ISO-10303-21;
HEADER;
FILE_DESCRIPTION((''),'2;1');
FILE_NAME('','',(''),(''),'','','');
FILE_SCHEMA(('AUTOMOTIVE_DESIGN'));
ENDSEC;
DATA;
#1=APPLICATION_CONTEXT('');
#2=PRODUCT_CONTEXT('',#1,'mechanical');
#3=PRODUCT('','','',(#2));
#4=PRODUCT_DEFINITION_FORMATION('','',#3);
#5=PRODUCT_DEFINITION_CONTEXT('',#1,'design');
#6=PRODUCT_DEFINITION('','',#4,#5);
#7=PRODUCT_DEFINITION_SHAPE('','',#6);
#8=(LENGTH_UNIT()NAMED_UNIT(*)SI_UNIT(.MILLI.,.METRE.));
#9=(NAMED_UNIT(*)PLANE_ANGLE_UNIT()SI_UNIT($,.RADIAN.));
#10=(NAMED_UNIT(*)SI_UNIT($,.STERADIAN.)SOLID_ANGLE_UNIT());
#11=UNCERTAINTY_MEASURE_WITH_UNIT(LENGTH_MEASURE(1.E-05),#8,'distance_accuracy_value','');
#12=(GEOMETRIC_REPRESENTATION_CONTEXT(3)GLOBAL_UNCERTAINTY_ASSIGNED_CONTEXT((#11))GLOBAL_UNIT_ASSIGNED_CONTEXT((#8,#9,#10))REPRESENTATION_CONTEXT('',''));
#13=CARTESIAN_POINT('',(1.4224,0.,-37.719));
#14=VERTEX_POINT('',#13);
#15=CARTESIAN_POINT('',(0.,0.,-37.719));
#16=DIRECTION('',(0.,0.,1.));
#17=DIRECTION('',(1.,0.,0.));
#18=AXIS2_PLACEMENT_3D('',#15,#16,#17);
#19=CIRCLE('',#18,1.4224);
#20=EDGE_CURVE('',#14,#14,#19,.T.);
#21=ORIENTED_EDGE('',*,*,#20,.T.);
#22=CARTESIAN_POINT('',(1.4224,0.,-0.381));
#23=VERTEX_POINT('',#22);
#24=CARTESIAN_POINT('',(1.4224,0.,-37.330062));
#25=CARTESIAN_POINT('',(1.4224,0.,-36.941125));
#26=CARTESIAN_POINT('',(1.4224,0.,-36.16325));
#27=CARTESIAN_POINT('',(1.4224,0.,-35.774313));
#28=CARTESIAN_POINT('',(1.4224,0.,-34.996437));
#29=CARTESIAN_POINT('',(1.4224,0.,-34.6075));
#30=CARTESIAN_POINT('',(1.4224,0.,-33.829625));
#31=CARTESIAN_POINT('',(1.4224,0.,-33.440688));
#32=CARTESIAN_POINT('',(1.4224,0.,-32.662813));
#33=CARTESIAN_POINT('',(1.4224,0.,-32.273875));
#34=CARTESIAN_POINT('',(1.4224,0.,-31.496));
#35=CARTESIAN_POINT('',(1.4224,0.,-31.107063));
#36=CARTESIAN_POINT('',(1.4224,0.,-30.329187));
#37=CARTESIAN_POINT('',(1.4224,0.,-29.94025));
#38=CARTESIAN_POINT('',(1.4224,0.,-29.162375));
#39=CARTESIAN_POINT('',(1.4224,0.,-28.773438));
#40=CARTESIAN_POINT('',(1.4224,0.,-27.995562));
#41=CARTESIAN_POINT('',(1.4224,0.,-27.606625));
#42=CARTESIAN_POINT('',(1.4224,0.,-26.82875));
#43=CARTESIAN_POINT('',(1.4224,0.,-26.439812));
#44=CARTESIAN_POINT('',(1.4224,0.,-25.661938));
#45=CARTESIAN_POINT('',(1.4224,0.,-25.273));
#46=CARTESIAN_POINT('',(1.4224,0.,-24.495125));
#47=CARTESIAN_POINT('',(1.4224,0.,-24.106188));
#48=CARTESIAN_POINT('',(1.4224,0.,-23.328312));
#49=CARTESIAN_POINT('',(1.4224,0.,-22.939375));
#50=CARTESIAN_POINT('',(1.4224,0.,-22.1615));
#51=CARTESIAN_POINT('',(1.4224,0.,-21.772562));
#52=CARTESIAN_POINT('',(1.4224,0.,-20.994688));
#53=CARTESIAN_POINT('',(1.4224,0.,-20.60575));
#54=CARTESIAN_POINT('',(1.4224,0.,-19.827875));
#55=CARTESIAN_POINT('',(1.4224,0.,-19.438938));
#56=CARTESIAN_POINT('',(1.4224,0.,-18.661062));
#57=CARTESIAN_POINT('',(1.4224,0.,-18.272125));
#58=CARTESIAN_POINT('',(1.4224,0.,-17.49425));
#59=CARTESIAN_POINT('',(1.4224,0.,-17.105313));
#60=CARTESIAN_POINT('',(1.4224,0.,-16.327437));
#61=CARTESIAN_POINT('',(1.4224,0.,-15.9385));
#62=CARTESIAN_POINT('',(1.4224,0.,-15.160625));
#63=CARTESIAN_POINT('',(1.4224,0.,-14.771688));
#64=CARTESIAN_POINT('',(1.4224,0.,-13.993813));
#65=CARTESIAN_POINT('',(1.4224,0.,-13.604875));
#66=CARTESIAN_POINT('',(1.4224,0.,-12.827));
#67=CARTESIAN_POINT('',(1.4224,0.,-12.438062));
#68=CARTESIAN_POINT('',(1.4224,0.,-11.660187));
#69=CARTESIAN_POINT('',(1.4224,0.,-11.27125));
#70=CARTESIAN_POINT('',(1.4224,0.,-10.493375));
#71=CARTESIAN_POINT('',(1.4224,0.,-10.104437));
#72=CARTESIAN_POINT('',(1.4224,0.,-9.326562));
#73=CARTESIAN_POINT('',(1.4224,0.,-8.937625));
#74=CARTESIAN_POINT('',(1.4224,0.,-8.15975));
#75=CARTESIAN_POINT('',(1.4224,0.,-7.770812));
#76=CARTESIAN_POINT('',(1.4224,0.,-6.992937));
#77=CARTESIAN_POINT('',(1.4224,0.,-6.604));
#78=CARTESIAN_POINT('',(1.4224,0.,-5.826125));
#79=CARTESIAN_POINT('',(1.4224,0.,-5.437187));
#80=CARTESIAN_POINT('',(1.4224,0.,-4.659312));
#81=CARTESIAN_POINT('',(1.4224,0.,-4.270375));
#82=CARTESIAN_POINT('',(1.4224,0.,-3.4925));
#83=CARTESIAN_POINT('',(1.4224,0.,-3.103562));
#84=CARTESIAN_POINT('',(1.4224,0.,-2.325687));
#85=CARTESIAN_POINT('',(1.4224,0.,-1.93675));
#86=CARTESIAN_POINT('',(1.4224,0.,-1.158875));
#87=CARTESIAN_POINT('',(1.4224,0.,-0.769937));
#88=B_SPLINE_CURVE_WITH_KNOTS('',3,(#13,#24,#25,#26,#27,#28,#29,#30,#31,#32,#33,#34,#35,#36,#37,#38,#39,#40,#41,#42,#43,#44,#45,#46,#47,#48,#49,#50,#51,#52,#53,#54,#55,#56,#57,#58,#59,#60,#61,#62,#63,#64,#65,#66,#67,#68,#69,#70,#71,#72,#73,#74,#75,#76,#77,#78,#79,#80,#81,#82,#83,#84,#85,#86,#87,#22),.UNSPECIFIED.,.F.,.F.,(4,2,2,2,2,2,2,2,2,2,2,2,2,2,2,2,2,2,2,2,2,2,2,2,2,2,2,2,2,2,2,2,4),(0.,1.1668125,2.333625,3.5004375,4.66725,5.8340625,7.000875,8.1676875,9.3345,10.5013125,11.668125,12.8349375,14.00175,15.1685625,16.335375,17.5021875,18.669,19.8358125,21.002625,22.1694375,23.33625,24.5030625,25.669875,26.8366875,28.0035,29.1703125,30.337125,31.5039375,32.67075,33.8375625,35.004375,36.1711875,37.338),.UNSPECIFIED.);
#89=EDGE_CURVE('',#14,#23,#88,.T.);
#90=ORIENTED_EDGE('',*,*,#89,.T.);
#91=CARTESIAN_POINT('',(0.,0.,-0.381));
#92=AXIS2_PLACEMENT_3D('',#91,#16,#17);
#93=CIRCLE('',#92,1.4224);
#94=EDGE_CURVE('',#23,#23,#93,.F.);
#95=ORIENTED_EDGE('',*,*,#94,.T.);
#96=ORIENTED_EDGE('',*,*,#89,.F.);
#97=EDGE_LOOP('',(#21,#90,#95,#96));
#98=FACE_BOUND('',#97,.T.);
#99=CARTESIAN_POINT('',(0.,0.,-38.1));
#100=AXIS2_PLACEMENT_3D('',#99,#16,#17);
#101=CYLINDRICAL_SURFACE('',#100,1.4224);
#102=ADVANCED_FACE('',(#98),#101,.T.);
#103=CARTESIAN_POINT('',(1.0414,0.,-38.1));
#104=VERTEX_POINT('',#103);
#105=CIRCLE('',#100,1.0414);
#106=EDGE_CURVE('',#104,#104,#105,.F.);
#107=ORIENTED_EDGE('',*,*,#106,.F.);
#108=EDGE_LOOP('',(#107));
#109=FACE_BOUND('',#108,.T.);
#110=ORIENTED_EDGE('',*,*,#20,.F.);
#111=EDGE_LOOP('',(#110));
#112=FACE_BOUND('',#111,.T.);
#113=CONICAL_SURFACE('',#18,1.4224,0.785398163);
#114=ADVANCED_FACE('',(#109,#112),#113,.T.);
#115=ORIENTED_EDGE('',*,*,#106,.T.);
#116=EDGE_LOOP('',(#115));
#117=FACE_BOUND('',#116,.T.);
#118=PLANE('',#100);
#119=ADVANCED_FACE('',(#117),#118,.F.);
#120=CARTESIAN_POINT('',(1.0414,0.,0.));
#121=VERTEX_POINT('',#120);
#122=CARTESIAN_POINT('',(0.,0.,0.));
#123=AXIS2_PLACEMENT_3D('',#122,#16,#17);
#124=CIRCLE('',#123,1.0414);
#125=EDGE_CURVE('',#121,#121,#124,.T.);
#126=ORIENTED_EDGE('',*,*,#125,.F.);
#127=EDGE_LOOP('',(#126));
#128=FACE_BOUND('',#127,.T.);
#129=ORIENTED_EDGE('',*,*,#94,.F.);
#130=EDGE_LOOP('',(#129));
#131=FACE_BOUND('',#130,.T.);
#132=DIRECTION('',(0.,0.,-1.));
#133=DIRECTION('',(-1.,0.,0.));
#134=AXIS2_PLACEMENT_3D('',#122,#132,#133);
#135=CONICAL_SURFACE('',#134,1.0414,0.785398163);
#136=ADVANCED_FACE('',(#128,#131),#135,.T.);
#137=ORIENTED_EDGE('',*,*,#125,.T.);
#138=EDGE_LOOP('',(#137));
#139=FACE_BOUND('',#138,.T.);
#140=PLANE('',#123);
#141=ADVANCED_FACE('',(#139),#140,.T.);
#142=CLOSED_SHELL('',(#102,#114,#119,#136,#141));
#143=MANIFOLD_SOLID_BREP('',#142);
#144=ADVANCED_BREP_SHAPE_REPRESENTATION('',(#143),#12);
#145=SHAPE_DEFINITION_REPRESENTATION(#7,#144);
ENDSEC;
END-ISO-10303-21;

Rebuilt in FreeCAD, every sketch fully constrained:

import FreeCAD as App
import Part
import Sketcher
Q = App.Units.Quantity


def edges_at(feature, points):
    """Names of the edges that pass closest to the given points."""
    edges = feature.Shape.Edges
    near = lambda p: min(range(len(edges)), key=lambda i: edges[i].distToShape(Part.Vertex(*p))[0])
    return sorted({f"Edge{near(p) + 1}" for p in points})

doc = App.newDocument("Part")
params = doc.addObject("Spreadsheet::Sheet", "Params")
for row, (alias, value) in enumerate([
    ("sketch1_diameter", "0.112 in"),
    ("pad1_length", "1.5 in"),
    ("chamfer_size", "0.015 in"),
], start=1):
    params.set(f"A{row}", alias)
    params.set(f"B{row}", "=" + value)
    params.setAlias(f"B{row}", alias)

body = doc.addObject("PartDesign::Body", "Body")

# Sketch on XY plane
sketch1 = doc.addObject("Sketcher::SketchObject", "Sketch")
body.addObject(sketch1)
sketch1.AttachmentSupport = (doc.XY_Plane, [""])
sketch1.MapMode = "FlatFace"
sketch1.addGeometry(Part.Circle(App.Vector(0, 0, 0), App.Vector(0, 0, 1), 1.4), False)
sketch1.addConstraint([
    Sketcher.Constraint("Coincident", 0, 3, -1, 1),
    Sketcher.Constraint("Diameter", 0, Q("0.112 in")),
])
sketch1.setExpression("Constraints[1]", "Params.sketch1_diameter")
pad1 = doc.addObject("PartDesign::Pad", "Pad")
body.addObject(pad1)
pad1.Profile = sketch1
pad1.setExpression("Length", "Params.pad1_length")
pad1.Reversed = True
doc.recompute()

chamfer = doc.addObject("PartDesign::Chamfer", "Chamfer")
body.addObject(chamfer)
chamfer.Base = (pad1, edges_at(pad1, [(-1.422, 0, 0), (-1.422, 0, -38.1)]))
chamfer.setExpression("Size", "Params.chamfer_size")

doc.recompute()
